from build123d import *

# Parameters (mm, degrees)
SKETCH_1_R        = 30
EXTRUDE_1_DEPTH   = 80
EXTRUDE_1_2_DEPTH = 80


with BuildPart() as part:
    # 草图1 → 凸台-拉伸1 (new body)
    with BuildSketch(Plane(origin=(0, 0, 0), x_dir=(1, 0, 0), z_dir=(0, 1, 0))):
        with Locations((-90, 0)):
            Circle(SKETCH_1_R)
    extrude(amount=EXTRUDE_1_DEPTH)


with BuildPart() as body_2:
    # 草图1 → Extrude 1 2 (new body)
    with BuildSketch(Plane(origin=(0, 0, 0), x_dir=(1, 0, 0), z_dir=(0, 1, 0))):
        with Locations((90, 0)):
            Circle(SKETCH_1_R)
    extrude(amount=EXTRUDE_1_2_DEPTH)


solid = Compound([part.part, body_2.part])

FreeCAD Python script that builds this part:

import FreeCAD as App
import Part
import Sketcher

V = App.Vector

doc = App.newDocument("Part")
body = doc.addObject("PartDesign::Body", "Body")

# Sketch on XZ plane
sketch1 = body.newObject("Sketcher::SketchObject", "Sketch")
sketch1.AttachmentSupport = (doc.getObject("XZ_Plane"), [""])
sketch1.MapMode = "FlatFace"
sketch1.addGeometry(Part.Circle(V(-90, 0, 0), V(0, 0, 1), 30), False)
sketch1.addConstraint([
    Sketcher.Constraint("PointOnObject", 0, 3, -1),
    Sketcher.Constraint("Diameter", 0, 60.0),
    Sketcher.Constraint("DistanceX", 0, 3, -1, 1, 90.0),
])
pad1 = body.newObject("PartDesign::Pad", "Pad")
pad1.Profile = sketch1
pad1.Length = 80
pad1.Reversed = True
body2 = doc.addObject("PartDesign::Body", "Body001")

# Sketch on XZ plane
sketch2 = body2.newObject("Sketcher::SketchObject", "Sketch001")
sketch2.AttachmentSupport = (doc.getObject("XZ_Plane001"), [""])
sketch2.MapMode = "FlatFace"
sketch2.addGeometry(Part.Circle(V(90, 0, 0), V(0, 0, 1), 30), False)
sketch2.addConstraint([
    Sketcher.Constraint("PointOnObject", 0, 3, -1),
    Sketcher.Constraint("Diameter", 0, 60.0),
    Sketcher.Constraint("DistanceX", -1, 1, 0, 3, 90.0),
])
pad2 = body2.newObject("PartDesign::Pad", "Pad001")
pad2.Profile = sketch2
pad2.Length = 80
pad2.Reversed = True

doc.recompute()
